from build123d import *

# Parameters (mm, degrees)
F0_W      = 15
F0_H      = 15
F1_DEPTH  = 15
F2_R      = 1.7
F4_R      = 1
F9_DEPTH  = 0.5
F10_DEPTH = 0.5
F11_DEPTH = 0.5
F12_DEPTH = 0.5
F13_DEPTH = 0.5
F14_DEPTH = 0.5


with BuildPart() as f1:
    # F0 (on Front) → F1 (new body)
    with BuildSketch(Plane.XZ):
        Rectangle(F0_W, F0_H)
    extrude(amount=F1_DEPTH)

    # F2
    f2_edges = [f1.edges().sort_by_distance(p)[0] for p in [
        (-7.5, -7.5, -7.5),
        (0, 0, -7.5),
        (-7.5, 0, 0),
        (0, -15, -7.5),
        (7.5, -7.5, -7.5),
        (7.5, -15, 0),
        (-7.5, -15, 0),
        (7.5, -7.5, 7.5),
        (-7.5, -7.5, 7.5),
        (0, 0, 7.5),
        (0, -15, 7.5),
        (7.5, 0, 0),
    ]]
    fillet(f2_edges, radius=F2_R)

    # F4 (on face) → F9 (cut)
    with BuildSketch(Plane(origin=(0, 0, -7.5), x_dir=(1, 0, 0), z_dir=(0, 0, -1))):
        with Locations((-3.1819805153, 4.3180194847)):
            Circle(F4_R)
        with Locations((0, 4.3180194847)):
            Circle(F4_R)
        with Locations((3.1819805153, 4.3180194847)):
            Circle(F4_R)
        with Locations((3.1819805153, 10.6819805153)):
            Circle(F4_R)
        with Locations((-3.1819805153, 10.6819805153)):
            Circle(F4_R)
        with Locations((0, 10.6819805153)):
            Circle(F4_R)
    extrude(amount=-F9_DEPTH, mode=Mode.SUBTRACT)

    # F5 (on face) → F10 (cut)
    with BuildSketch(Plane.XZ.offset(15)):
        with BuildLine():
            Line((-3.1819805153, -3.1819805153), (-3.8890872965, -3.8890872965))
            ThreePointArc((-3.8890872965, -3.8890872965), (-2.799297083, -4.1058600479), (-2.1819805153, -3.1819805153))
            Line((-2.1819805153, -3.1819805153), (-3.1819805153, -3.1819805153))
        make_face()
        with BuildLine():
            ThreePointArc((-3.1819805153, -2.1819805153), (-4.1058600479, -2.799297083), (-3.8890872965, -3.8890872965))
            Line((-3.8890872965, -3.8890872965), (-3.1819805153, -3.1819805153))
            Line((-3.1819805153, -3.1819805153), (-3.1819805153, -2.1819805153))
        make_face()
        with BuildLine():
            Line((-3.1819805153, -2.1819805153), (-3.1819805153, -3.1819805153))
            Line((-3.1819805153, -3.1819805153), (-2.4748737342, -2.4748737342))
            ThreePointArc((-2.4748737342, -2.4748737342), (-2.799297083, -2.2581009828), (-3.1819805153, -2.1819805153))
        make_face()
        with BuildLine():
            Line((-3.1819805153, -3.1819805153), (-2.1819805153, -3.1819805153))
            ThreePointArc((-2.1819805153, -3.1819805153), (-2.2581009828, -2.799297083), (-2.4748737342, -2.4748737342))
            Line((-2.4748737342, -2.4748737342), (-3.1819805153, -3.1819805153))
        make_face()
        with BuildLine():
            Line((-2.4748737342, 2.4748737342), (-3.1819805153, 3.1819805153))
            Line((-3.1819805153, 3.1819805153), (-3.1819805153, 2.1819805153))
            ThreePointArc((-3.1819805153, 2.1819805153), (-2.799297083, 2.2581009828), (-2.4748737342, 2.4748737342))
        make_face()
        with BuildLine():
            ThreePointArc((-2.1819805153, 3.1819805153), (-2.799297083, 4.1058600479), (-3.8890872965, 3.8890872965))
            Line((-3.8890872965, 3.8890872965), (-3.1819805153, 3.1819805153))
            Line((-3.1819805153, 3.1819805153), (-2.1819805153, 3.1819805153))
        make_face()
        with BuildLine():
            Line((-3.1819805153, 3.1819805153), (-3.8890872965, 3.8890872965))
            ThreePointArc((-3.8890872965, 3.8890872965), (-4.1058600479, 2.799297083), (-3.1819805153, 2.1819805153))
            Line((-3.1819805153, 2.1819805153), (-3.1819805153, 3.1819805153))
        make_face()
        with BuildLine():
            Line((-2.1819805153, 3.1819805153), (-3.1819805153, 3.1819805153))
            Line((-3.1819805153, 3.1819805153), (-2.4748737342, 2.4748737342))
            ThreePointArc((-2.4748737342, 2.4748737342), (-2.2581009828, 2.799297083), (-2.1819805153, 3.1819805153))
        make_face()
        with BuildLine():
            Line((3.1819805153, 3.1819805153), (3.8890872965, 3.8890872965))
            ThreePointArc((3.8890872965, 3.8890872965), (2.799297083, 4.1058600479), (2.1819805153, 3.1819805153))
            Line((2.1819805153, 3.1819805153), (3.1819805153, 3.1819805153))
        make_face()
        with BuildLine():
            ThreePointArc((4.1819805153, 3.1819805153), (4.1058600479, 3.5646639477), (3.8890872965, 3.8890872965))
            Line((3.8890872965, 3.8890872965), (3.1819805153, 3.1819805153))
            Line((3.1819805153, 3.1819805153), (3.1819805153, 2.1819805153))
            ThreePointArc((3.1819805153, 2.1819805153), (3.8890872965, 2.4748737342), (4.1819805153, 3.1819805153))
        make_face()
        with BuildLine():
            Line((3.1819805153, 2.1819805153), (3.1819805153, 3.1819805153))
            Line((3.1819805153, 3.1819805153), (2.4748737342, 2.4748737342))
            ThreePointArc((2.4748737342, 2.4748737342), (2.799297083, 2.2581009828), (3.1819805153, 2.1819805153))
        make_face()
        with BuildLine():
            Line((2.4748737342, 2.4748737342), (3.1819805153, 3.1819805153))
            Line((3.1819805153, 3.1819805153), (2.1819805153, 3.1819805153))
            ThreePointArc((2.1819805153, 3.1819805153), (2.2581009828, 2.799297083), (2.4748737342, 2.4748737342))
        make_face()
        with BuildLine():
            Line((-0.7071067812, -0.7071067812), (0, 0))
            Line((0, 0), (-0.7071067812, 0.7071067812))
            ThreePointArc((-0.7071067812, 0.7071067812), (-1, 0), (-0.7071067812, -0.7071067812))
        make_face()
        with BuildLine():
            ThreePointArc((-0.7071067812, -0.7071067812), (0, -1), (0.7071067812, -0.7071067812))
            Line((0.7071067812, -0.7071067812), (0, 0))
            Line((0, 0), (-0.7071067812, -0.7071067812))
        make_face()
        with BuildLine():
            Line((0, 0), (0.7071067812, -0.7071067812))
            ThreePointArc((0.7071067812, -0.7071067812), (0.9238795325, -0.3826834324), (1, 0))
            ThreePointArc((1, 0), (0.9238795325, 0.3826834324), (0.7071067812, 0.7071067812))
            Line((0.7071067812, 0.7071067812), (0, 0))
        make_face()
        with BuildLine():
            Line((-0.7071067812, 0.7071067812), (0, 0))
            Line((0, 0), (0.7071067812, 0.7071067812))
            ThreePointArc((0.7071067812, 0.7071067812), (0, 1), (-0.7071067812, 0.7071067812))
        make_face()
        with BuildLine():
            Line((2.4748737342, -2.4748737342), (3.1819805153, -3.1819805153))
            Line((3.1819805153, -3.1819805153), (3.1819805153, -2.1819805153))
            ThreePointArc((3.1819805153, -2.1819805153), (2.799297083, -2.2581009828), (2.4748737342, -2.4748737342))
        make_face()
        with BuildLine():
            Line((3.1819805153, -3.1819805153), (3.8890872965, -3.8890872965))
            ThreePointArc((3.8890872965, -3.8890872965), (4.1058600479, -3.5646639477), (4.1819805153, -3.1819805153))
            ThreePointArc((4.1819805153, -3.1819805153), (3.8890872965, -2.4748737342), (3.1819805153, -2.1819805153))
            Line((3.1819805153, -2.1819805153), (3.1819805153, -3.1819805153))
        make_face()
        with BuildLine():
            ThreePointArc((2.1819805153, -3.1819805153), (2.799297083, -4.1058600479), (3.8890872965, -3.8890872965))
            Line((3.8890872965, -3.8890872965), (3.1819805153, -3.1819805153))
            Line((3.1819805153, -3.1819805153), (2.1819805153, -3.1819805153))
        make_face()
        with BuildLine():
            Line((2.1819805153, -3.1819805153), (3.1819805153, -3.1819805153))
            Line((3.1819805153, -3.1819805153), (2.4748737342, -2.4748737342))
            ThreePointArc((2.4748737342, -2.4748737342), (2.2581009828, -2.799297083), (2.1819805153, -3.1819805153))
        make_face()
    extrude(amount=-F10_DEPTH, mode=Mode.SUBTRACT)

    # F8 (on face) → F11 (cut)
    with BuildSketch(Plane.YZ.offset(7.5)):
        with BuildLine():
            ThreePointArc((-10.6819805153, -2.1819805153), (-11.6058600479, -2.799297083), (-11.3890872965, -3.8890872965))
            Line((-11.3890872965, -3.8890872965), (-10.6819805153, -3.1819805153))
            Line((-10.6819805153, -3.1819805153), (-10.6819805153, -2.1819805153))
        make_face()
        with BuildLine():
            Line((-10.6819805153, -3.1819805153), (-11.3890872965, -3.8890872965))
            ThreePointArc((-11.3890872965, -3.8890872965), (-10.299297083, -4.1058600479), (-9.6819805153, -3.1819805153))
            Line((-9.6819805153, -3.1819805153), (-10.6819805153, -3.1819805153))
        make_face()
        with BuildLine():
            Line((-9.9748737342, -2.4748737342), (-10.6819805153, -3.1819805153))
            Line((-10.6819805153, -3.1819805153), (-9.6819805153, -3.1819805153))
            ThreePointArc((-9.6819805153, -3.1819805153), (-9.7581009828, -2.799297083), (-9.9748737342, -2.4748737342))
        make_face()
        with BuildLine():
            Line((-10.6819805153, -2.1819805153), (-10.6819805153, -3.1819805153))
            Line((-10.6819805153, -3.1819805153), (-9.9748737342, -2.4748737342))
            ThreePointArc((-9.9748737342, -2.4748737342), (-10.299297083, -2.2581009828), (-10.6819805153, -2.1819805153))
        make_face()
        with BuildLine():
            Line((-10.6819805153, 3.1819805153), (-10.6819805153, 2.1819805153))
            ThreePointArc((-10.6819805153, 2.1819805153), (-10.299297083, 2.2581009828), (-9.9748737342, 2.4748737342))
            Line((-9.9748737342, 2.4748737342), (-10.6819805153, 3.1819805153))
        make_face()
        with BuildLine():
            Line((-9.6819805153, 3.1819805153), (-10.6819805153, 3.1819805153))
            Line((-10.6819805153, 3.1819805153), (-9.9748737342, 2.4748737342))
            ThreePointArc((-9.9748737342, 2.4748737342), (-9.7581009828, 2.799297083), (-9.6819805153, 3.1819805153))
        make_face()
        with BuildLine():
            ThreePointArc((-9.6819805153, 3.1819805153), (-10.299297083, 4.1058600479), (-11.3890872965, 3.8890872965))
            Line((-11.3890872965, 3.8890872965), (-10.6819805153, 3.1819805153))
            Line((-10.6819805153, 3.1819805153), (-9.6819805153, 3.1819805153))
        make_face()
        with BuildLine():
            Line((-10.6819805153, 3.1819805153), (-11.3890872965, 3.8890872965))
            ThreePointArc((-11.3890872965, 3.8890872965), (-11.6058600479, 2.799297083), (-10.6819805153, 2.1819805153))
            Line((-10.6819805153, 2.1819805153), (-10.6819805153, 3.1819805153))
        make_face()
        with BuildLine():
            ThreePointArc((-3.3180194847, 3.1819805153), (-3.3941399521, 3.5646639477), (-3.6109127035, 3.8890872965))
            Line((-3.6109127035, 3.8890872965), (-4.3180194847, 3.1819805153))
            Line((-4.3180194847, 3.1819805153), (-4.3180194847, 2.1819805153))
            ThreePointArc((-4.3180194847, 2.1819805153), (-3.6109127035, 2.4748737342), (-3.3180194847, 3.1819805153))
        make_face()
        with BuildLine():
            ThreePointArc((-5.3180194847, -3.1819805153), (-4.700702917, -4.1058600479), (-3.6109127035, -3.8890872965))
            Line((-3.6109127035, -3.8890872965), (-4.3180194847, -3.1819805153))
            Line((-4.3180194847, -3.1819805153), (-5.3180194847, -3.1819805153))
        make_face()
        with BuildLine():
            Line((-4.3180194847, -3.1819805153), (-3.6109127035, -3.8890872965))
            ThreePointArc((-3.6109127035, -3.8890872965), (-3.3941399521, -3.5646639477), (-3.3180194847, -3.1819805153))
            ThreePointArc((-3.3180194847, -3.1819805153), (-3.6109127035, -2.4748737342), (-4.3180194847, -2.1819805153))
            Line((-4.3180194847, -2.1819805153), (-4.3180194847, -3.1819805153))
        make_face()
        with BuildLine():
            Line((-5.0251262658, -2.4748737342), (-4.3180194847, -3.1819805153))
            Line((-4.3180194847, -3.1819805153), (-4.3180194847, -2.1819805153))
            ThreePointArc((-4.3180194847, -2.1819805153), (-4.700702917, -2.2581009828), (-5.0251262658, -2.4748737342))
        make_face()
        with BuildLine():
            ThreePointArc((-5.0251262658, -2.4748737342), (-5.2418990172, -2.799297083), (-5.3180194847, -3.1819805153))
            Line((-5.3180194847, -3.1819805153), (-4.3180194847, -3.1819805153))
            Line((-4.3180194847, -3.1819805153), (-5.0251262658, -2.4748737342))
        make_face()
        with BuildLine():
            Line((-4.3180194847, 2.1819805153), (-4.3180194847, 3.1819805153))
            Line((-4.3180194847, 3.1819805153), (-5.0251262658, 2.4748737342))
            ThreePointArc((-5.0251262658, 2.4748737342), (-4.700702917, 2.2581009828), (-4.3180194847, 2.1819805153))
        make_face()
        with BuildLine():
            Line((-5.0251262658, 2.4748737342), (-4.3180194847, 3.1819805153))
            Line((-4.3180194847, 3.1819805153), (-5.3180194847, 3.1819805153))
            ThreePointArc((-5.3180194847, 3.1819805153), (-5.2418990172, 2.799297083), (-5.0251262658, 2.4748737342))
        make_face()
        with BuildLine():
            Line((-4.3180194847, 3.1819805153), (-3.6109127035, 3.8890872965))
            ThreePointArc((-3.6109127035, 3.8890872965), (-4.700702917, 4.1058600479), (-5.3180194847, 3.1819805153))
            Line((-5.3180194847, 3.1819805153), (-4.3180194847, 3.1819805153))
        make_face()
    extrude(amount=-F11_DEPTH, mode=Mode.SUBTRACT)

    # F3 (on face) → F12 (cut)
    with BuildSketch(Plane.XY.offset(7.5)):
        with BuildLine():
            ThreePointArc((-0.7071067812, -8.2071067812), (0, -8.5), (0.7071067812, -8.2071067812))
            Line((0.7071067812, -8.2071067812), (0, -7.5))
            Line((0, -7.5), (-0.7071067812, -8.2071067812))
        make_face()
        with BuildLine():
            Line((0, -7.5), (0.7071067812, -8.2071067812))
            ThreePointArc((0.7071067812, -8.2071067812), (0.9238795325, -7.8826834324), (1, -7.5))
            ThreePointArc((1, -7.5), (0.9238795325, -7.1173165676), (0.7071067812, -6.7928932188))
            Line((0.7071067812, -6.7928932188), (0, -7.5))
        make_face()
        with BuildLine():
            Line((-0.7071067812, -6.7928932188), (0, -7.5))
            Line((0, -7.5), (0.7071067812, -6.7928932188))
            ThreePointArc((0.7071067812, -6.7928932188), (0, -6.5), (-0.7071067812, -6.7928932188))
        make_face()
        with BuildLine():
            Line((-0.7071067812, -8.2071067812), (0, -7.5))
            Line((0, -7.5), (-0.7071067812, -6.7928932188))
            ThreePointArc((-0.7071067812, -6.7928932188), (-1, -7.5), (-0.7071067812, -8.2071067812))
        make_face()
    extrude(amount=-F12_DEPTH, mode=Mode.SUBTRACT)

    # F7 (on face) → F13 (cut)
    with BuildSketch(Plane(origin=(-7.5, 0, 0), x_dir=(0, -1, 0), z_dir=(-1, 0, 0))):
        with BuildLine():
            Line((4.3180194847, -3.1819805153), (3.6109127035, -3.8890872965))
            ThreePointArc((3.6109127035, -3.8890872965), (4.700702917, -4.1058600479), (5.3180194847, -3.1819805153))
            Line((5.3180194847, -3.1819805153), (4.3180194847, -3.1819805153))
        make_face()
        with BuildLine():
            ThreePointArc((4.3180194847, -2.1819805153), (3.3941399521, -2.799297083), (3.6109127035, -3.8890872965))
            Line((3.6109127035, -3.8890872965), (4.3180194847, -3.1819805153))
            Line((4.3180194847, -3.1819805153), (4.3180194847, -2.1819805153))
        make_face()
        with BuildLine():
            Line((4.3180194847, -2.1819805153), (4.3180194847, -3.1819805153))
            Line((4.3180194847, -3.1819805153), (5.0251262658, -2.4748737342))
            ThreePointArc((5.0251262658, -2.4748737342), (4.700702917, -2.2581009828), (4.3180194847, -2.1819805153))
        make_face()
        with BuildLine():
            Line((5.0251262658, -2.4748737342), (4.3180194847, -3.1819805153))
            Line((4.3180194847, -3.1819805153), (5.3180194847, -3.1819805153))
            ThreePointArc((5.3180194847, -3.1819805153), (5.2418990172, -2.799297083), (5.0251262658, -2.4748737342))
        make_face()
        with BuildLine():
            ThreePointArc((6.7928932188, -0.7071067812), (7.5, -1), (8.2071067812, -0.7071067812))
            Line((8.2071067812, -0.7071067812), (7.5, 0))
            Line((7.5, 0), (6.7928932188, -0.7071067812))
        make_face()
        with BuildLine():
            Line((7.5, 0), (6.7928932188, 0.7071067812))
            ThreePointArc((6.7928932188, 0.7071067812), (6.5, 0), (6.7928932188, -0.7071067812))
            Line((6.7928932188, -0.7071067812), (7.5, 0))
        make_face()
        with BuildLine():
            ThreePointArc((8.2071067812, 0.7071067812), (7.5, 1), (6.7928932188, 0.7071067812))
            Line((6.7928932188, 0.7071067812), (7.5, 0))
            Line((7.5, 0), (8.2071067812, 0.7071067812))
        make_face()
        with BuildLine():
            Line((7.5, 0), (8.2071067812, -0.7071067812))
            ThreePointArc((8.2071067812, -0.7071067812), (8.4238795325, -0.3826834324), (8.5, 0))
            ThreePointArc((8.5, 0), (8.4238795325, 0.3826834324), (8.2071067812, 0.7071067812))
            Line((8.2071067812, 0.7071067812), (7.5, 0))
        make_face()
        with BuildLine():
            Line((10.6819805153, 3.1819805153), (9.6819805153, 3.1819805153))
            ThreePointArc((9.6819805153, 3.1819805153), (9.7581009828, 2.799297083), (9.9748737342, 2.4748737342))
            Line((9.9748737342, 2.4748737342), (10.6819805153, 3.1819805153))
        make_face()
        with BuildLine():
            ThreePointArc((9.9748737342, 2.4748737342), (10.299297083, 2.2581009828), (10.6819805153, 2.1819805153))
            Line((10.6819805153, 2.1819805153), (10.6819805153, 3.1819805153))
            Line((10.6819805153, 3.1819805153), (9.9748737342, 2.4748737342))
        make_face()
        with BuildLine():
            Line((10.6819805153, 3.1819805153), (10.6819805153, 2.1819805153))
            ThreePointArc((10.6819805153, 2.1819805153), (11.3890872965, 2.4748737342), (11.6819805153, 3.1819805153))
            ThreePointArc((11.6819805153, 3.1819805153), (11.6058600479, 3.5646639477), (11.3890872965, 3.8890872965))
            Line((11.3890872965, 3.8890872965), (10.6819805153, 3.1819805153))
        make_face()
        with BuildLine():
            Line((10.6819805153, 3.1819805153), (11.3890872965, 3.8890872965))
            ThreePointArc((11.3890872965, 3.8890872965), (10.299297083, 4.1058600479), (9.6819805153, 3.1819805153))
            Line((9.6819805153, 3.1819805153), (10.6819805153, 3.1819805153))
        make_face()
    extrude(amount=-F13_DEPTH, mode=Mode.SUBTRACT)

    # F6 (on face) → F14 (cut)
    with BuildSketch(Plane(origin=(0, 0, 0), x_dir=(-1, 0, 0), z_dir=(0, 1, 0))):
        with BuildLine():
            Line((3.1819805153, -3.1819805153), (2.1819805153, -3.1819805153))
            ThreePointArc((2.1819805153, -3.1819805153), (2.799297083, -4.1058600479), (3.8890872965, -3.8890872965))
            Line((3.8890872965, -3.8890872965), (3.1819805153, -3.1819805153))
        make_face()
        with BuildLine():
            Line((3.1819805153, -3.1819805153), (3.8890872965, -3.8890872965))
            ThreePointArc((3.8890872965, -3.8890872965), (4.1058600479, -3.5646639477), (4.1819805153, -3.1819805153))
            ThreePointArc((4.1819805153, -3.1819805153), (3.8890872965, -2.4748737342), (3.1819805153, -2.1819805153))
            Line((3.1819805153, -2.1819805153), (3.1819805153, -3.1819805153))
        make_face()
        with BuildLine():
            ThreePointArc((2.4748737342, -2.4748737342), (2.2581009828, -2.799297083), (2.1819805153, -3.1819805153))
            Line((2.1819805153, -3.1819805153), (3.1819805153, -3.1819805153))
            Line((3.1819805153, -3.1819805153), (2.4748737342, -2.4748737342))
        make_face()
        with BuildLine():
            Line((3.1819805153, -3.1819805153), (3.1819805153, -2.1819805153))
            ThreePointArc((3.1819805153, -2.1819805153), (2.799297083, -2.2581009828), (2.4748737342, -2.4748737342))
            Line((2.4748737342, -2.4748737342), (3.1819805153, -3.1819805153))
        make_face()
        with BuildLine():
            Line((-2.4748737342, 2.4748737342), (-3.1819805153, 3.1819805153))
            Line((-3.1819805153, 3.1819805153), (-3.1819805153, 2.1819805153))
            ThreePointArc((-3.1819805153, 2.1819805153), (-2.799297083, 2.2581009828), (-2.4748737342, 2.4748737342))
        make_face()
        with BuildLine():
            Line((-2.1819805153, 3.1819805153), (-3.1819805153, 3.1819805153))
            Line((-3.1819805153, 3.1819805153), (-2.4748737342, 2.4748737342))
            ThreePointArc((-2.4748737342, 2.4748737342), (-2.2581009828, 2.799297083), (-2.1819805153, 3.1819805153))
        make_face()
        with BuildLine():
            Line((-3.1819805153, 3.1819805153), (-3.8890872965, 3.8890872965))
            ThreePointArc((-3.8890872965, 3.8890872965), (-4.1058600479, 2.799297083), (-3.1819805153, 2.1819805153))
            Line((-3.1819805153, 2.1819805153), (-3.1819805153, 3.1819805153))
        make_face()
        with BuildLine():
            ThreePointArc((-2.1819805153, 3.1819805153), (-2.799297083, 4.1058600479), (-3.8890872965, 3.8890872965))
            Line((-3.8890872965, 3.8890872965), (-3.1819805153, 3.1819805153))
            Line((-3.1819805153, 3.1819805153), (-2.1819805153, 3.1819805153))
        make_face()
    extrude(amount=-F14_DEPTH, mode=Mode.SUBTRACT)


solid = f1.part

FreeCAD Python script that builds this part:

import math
import FreeCAD as App
import Part
import Sketcher

V = App.Vector

doc = App.newDocument("Part")
body = doc.addObject("PartDesign::Body", "Body")

sketch1 = doc.addObject("Sketcher::SketchObject", "Sketch")
body.addObject(sketch1)
sketch1.AttachmentSupport = (doc.XZ_Plane, [""])
sketch1.MapMode = "FlatFace"
sketch1.addGeometry([
    Part.LineSegment(V(-8, 8, 0), V(-8, -8, 0)),
    Part.LineSegment(V(-8, -8, 0), V(8, -8, 0)),
    Part.LineSegment(V(8, -8, 0), V(8, 8, 0)),
    Part.LineSegment(V(8, 8, 0), V(-8, 8, 0)),
], False)
sketch1.addConstraint([
    Sketcher.Constraint("Coincident", 0, 2, 1, 1),
    Sketcher.Constraint("Coincident", 1, 2, 2, 1),
    Sketcher.Constraint("Coincident", 2, 2, 3, 1),
    Sketcher.Constraint("Coincident", 3, 2, 0, 1),
    Sketcher.Constraint("Vertical", 0),
    Sketcher.Constraint("Horizontal", 1),
    Sketcher.Constraint("Vertical", 2),
    Sketcher.Constraint("Horizontal", 3),
    Sketcher.Constraint("Symmetric", 0, 2, 2, 2, -1, 1),
    Sketcher.Constraint("Equal", 3, 0),
    Sketcher.Constraint("DistanceX", 1, 1, 1, 2, 15.0),
])
pad1 = doc.addObject("PartDesign::Pad", "Pad")
body.addObject(pad1)
pad1.Profile = sketch1
pad1.Length = 15
doc.recompute()

fillet = doc.addObject("PartDesign::Fillet", "Fillet")
body.addObject(fillet)
fillet.Base = (pad1, ["Edge1"])
fillet.UseAllEdges = True
fillet.Radius = 1.7

sketch2 = doc.addObject("Sketcher::SketchObject", "Sketch001")
body.addObject(sketch2)
sketch2.AttachmentSupport = (doc.XY_Plane, [""])
sketch2.MapMode = "FlatFace"
sketch2.AttachmentOffset = App.Placement(V(0, 0, -7.5), App.Rotation())
sketch2.addGeometry([
    Part.Circle(V(-3.2, -4.3, 0), V(0, 0, 1), 1),
    Part.Circle(V(0, -4.3, 0), V(0, 0, 1), 1),
    Part.Circle(V(3.2, -4.3, 0), V(0, 0, 1), 1),
    Part.Circle(V(3.2, -10.7, 0), V(0, 0, 1), 1),
    Part.Circle(V(-3.2, -10.7, 0), V(0, 0, 1), 1),
    Part.Circle(V(0, -10.7, 0), V(0, 0, 1), 1),
], False)
sketch2.addConstraint([
    Sketcher.Constraint("Equal", 0, 1),
    Sketcher.Constraint("Equal", 1, 2),
    Sketcher.Constraint("Equal", 2, 3),
    Sketcher.Constraint("Equal", 3, 4),
    Sketcher.Constraint("Equal", 4, 5),
    Sketcher.Constraint("Symmetric", 0, 3, 2, 3, -2),
    Sketcher.Constraint("Symmetric", 3, 3, 4, 3, -2),
    Sketcher.Constraint("PointOnObject", 1, 3, -2),
    Sketcher.Constraint("PointOnObject", 5, 3, -2),
    Sketcher.Constraint("Horizontal", 0, 3, 1, 3),
    Sketcher.Constraint("Horizontal", 4, 3, 5, 3),
    Sketcher.Constraint("Vertical", 2, 3, 3, 3),
    Sketcher.Constraint("Diameter", 0, 2.0),
    Sketcher.Constraint("DistanceX", 0, 3, -1, 1, 3.181981),
    Sketcher.Constraint("DistanceY", 0, 3, -1, 1, 4.318019),
    Sketcher.Constraint("DistanceY", 3, 3, -1, 1, 10.681981),
])
pocket1 = doc.addObject("PartDesign::Pocket", "Pocket")
body.addObject(pocket1)
pocket1.Profile = sketch2
pocket1.Length = 0.5
pocket1.Reversed = True

sketch3 = doc.addObject("Sketcher::SketchObject", "Sketch002")
body.addObject(sketch3)
sketch3.AttachmentSupport = (doc.XZ_Plane, [""])
sketch3.MapMode = "FlatFace"
sketch3.AttachmentOffset = App.Placement(V(0, 0, 15), App.Rotation())
sketch3.addGeometry([
    Part.ArcOfCircle(Part.Circle(V(-3.2, -3.2, 0), V(0, 0, 1), 1), math.radians(-135), math.radians(0)),
    Part.ArcOfCircle(Part.Circle(V(-3.2, -3.2, 0), V(0, 0, 1), 1), math.radians(0), math.radians(45)),
    Part.ArcOfCircle(Part.Circle(V(-3.2, -3.2, 0), V(0, 0, 1), 1), math.radians(45), math.radians(90)),
    Part.ArcOfCircle(Part.Circle(V(-3.2, -3.2, 0), V(0, 0, 1), 1), math.radians(90), math.radians(225)),
    Part.ArcOfCircle(Part.Circle(V(-3.2, 3.2, 0), V(0, 0, 1), 1), math.radians(0), math.radians(135)),
    Part.ArcOfCircle(Part.Circle(V(-3.2, 3.2, 0), V(0, 0, 1), 1), math.radians(135), math.radians(270)),
    Part.ArcOfCircle(Part.Circle(V(-3.2, 3.2, 0), V(0, 0, 1), 1), math.radians(-90), math.radians(-45)),
    Part.ArcOfCircle(Part.Circle(V(-3.2, 3.2, 0), V(0, 0, 1), 1), math.radians(-45), math.radians(0)),
    Part.ArcOfCircle(Part.Circle(V(3.2, 3.2, 0), V(0, 0, 1), 1), math.radians(45), math.radians(180)),
    Part.ArcOfCircle(Part.Circle(V(3.2, 3.2, 0), V(0, 0, 1), 1), math.radians(180), math.radians(225)),
    Part.ArcOfCircle(Part.Circle(V(3.2, 3.2, 0), V(0, 0, 1), 1), math.radians(-135), math.radians(-90)),
    Part.ArcOfCircle(Part.Circle(V(3.2, 3.2, 0), V(0, 0, 1), 1), math.radians(-90), math.radians(0)),
    Part.ArcOfCircle(Part.Circle(V(3.2, 3.2, 0), V(0, 0, 1), 1), math.radians(0), math.radians(45)),
    Part.ArcOfCircle(Part.Circle(V(0, 0, 0), V(0, 0, 1), 1), math.radians(135), math.radians(225)),
    Part.ArcOfCircle(Part.Circle(V(0, 0, 0), V(0, 0, 1), 1), math.radians(-135), math.radians(-45)),
    Part.ArcOfCircle(Part.Circle(V(0, 0, 0), V(0, 0, 1), 1), math.radians(-45), math.radians(0)),
    Part.ArcOfCircle(Part.Circle(V(0, 0, 0), V(0, 0, 1), 1), math.radians(0), math.radians(45)),
    Part.ArcOfCircle(Part.Circle(V(0, 0, 0), V(0, 0, 1), 1), math.radians(45), math.radians(135)),
    Part.ArcOfCircle(Part.Circle(V(3.2, -3.2, 0), V(0, 0, 1), 1), math.radians(180), math.radians(315)),
    Part.ArcOfCircle(Part.Circle(V(3.2, -3.2, 0), V(0, 0, 1), 1), math.radians(-45), math.radians(0)),
    Part.ArcOfCircle(Part.Circle(V(3.2, -3.2, 0), V(0, 0, 1), 1), math.radians(0), math.radians(90)),
    Part.ArcOfCircle(Part.Circle(V(3.2, -3.2, 0), V(0, 0, 1), 1), math.radians(90), math.radians(135)),
    Part.ArcOfCircle(Part.Circle(V(3.2, -3.2, 0), V(0, 0, 1), 1), math.radians(135), math.radians(180)),
], False)
sketch3.addConstraint([
    Sketcher.Constraint("Tangent", 0, 2, 1, 1),
    Sketcher.Constraint("Tangent", 1, 2, 2, 1),
    Sketcher.Constraint("Tangent", 2, 2, 3, 1),
    Sketcher.Constraint("Tangent", 3, 2, 0, 1),
    Sketcher.Constraint("Tangent", 4, 2, 5, 1),
    Sketcher.Constraint("Tangent", 5, 2, 6, 1),
    Sketcher.Constraint("Tangent", 6, 2, 7, 1),
    Sketcher.Constraint("Tangent", 7, 2, 4, 1),
    Sketcher.Constraint("Tangent", 8, 2, 9, 1),
    Sketcher.Constraint("Tangent", 9, 2, 10, 1),
    Sketcher.Constraint("Tangent", 10, 2, 11, 1),
    Sketcher.Constraint("Tangent", 11, 2, 12, 1),
    Sketcher.Constraint("Tangent", 12, 2, 8, 1),
    Sketcher.Constraint("Tangent", 13, 2, 14, 1),
    Sketcher.Constraint("Tangent", 14, 2, 15, 1),
    Sketcher.Constraint("Tangent", 15, 2, 16, 1),
    Sketcher.Constraint("Tangent", 16, 2, 17, 1),
    Sketcher.Constraint("Tangent", 17, 2, 13, 1),
    Sketcher.Constraint("Tangent", 18, 2, 19, 1),
    Sketcher.Constraint("Tangent", 19, 2, 20, 1),
    Sketcher.Constraint("Tangent", 20, 2, 21, 1),
    Sketcher.Constraint("Tangent", 21, 2, 22, 1),
    Sketcher.Constraint("Tangent", 22, 2, 18, 1),
    Sketcher.Constraint("Coincident", 13, 3, -1, 1),
    Sketcher.Constraint("Coincident", 15, 3, -1, 1),
    Sketcher.Constraint("Coincident", 10, 3, 8, 3),
    Sketcher.Constraint("Coincident", 20, 3, 18, 3),
    Sketcher.Constraint("Equal", 0, 1),
    Sketcher.Constraint("Equal", 3, 4),
    Sketcher.Constraint("Equal", 4, 5),
    Sketcher.Constraint("Equal", 7, 8),
    Sketcher.Constraint("Equal", 12, 13),
    Sketcher.Constraint("Equal", 17, 18),
    Sketcher.Constraint("Symmetric", 0, 3, 8, 3, -1, 1),
    Sketcher.Constraint("Symmetric", 4, 3, 18, 3, -1, 1),
    Sketcher.Constraint("Symmetric", 4, 3, 8, 3, -2),
    Sketcher.Constraint("PointOnObject", 15, 2, -1),
    Sketcher.Constraint("Horizontal", 22, 3, 0, 2),
    Sketcher.Constraint("Horizontal", 12, 3, 7, 2),
    Sketcher.Constraint("Horizontal", 7, 2, 8, 2),
    Sketcher.Constraint("Horizontal", 6, 2, 9, 2),
    Sketcher.Constraint("Horizontal", 8, 2, 11, 2),
    Sketcher.Constraint("Horizontal", 4, 2, 12, 2),
    Sketcher.Constraint("Horizontal", 13, 2, 14, 2),
    Sketcher.Constraint("Horizontal", 16, 2, 17, 2),
    Sketcher.Constraint("Horizontal", 3, 2, 18, 2),
    Sketcher.Constraint("Horizontal", 0, 2, 19, 2),
    Sketcher.Constraint("Horizontal", 1, 2, 21, 2),
    Sketcher.Constraint("Horizontal", 19, 2, 22, 2),
    Sketcher.Constraint("Vertical", 7, 3, 2, 2),
    Sketcher.Constraint("Vertical", 3, 2, 4, 2),
    Sketcher.Constraint("Vertical", 2, 2, 5, 2),
    Sketcher.Constraint("Vertical", 1, 2, 6, 2),
    Sketcher.Constraint("Vertical", 22, 3, 10, 2),
    Sketcher.Constraint("Vertical", 14, 2, 16, 2),
    Sketcher.Constraint("Vertical", 10, 2, 20, 2),
    Sketcher.Constraint("Radius", 0, 1.0),
    Sketcher.Constraint("DistanceX", 0, 3, -1, 1, 3.181981),
    Sketcher.Constraint("DistanceY", 0, 3, -1, 1, 3.181981),
    Sketcher.Constraint("DistanceX", 1, 2, -1, 1, 2.474874),
    Sketcher.Constraint("DistanceX", 3, 2, -1, 1, 3.889087),
    Sketcher.Constraint("DistanceX", 13, 2, -1, 1, 0.707107),
])
pocket2 = doc.addObject("PartDesign::Pocket", "Pocket001")
body.addObject(pocket2)
pocket2.Profile = sketch3
pocket2.Length = 0.5

sketch4 = doc.addObject("Sketcher::SketchObject", "Sketch003")
body.addObject(sketch4)
sketch4.AttachmentSupport = (doc.YZ_Plane, [""])
sketch4.MapMode = "FlatFace"
sketch4.AttachmentOffset = App.Placement(V(0, 0, 7.5), App.Rotation())
sketch4.addGeometry([
    Part.ArcOfCircle(Part.Circle(V(-10.7, -3.2, 0), V(0, 0, 1), 1), math.radians(90), math.radians(225)),
    Part.ArcOfCircle(Part.Circle(V(-10.7, -3.2, 0), V(0, 0, 1), 1), math.radians(-135), math.radians(0)),
    Part.ArcOfCircle(Part.Circle(V(-10.7, -3.2, 0), V(0, 0, 1), 1), math.radians(0), math.radians(45)),
    Part.ArcOfCircle(Part.Circle(V(-10.7, -3.2, 0), V(0, 0, 1), 1), math.radians(45), math.radians(90)),
    Part.ArcOfCircle(Part.Circle(V(-10.7, 3.2, 0), V(0, 0, 1), 1), math.radians(-90), math.radians(-45)),
    Part.ArcOfCircle(Part.Circle(V(-10.7, 3.2, 0), V(0, 0, 1), 1), math.radians(-45), math.radians(0)),
    Part.ArcOfCircle(Part.Circle(V(-10.7, 3.2, 0), V(0, 0, 1), 1), math.radians(0), math.radians(135)),
    Part.ArcOfCircle(Part.Circle(V(-10.7, 3.2, 0), V(0, 0, 1), 1), math.radians(135), math.radians(270)),
    Part.ArcOfCircle(Part.Circle(V(-4.3, 3.2, 0), V(0, 0, 1), 1), math.radians(0), math.radians(45)),
    Part.ArcOfCircle(Part.Circle(V(-4.3, 3.2, 0), V(0, 0, 1), 1), math.radians(45), math.radians(180)),
    Part.ArcOfCircle(Part.Circle(V(-4.3, 3.2, 0), V(0, 0, 1), 1), math.radians(180), math.radians(225)),
    Part.ArcOfCircle(Part.Circle(V(-4.3, 3.2, 0), V(0, 0, 1), 1), math.radians(-135), math.radians(-90)),
    Part.ArcOfCircle(Part.Circle(V(-4.3, 3.2, 0), V(0, 0, 1), 1), math.radians(-90), math.radians(0)),
    Part.ArcOfCircle(Part.Circle(V(-4.3, -3.2, 0), V(0, 0, 1), 1), math.radians(180), math.radians(315)),
    Part.ArcOfCircle(Part.Circle(V(-4.3, -3.2, 0), V(0, 0, 1), 1), math.radians(-45), math.radians(0)),
    Part.ArcOfCircle(Part.Circle(V(-4.3, -3.2, 0), V(0, 0, 1), 1), math.radians(0), math.radians(90)),
    Part.ArcOfCircle(Part.Circle(V(-4.3, -3.2, 0), V(0, 0, 1), 1), math.radians(90), math.radians(135)),
    Part.ArcOfCircle(Part.Circle(V(-4.3, -3.2, 0), V(0, 0, 1), 1), math.radians(135), math.radians(180)),
], False)
sketch4.addConstraint([
    Sketcher.Constraint("Tangent", 0, 2, 1, 1),
    Sketcher.Constraint("Tangent", 1, 2, 2, 1),
    Sketcher.Constraint("Tangent", 2, 2, 3, 1),
    Sketcher.Constraint("Tangent", 3, 2, 0, 1),
    Sketcher.Constraint("Tangent", 4, 2, 5, 1),
    Sketcher.Constraint("Tangent", 5, 2, 6, 1),
    Sketcher.Constraint("Tangent", 6, 2, 7, 1),
    Sketcher.Constraint("Tangent", 7, 2, 4, 1),
    Sketcher.Constraint("Tangent", 8, 2, 9, 1),
    Sketcher.Constraint("Tangent", 9, 2, 10, 1),
    Sketcher.Constraint("Tangent", 10, 2, 11, 1),
    Sketcher.Constraint("Tangent", 11, 2, 12, 1),
    Sketcher.Constraint("Tangent", 12, 2, 8, 1),
    Sketcher.Constraint("Tangent", 13, 2, 14, 1),
    Sketcher.Constraint("Tangent", 14, 2, 15, 1),
    Sketcher.Constraint("Tangent", 15, 2, 16, 1),
    Sketcher.Constraint("Tangent", 16, 2, 17, 1),
    Sketcher.Constraint("Tangent", 17, 2, 13, 1),
    Sketcher.Constraint("Coincident", 10, 3, 8, 3),
    Sketcher.Constraint("Coincident", 15, 3, 13, 3),
    Sketcher.Constraint("Equal", 0, 1),
    Sketcher.Constraint("Equal", 3, 4),
    Sketcher.Constraint("Equal", 4, 5),
    Sketcher.Constraint("Equal", 7, 8),
    Sketcher.Constraint("Equal", 12, 13),
    Sketcher.Constraint("Symmetric", 0, 3, 4, 3, -1),
    Sketcher.Constraint("Symmetric", 8, 3, 13, 3, -1),
    Sketcher.Constraint("Horizontal", 7, 3, 8, 3),
    Sketcher.Constraint("Horizontal", 17, 3, 1, 2),
    Sketcher.Constraint("Horizontal", 12, 3, 5, 2),
    Sketcher.Constraint("Horizontal", 6, 2, 8, 2),
    Sketcher.Constraint("Horizontal", 5, 2, 9, 2),
    Sketcher.Constraint("Horizontal", 4, 2, 10, 2),
    Sketcher.Constraint("Horizontal", 9, 2, 12, 2),
    Sketcher.Constraint("Horizontal", 0, 2, 13, 2),
    Sketcher.Constraint("Horizontal", 1, 2, 14, 2),
    Sketcher.Constraint("Horizontal", 2, 2, 16, 2),
    Sketcher.Constraint("Horizontal", 14, 2, 17, 2),
    Sketcher.Constraint("Vertical", 7, 3, 3, 2),
    Sketcher.Constraint("Vertical", 2, 2, 4, 2),
    Sketcher.Constraint("Vertical", 0, 2, 6, 2),
    Sketcher.Constraint("Vertical", 3, 2, 7, 2),
    Sketcher.Constraint("Vertical", 17, 3, 11, 2),
    Sketcher.Constraint("Vertical", 11, 2, 15, 2),
    Sketcher.Constraint("Radius", 0, 1.0),
    Sketcher.Constraint("DistanceX", 0, 3, -1, 1, 10.681981),
    Sketcher.Constraint("DistanceY", 0, 3, -1, 1, 3.181981),
    Sketcher.Constraint("DistanceX", 8, 3, -1, 1, 4.318019),
    Sketcher.Constraint("DistanceX", 0, 2, -1, 1, 11.389087),
    Sketcher.Constraint("DistanceX", 2, 2, -1, 1, 9.974874),
])
pocket3 = doc.addObject("PartDesign::Pocket", "Pocket002")
body.addObject(pocket3)
pocket3.Profile = sketch4
pocket3.Length = 0.5

sketch5 = doc.addObject("Sketcher::SketchObject", "Sketch004")
body.addObject(sketch5)
sketch5.AttachmentSupport = (doc.XY_Plane, [""])
sketch5.MapMode = "FlatFace"
sketch5.AttachmentOffset = App.Placement(V(0, 0, 7.5), App.Rotation())
sketch5.addGeometry([
    Part.ArcOfCircle(Part.Circle(V(0, -7.5, 0), V(0, 0, 1), 1), math.radians(-135), math.radians(-45)),
    Part.ArcOfCircle(Part.Circle(V(0, -7.5, 0), V(0, 0, 1), 1), math.radians(-45), math.radians(0)),
    Part.ArcOfCircle(Part.Circle(V(0, -7.5, 0), V(0, 0, 1), 1), math.radians(0), math.radians(45)),
    Part.ArcOfCircle(Part.Circle(V(0, -7.5, 0), V(0, 0, 1), 1), math.radians(45), math.radians(135)),
    Part.ArcOfCircle(Part.Circle(V(0, -7.5, 0), V(0, 0, 1), 1), math.radians(135), math.radians(225)),
], False)
sketch5.addConstraint([
    Sketcher.Constraint("Tangent", 0, 2, 1, 1),
    Sketcher.Constraint("Tangent", 1, 2, 2, 1),
    Sketcher.Constraint("Tangent", 2, 2, 3, 1),
    Sketcher.Constraint("Tangent", 3, 2, 4, 1),
    Sketcher.Constraint("Tangent", 4, 2, 0, 1),
    Sketcher.Constraint("Coincident", 2, 3, 0, 3),
    Sketcher.Constraint("Symmetric", 2, 2, 3, 2, -2),
    Sketcher.Constraint("Horizontal", 4, 3, 1, 2),
    Sketcher.Constraint("Horizontal", 0, 2, 4, 2),
    Sketcher.Constraint("Vertical", 0, 2, 2, 2),
    Sketcher.Constraint("Radius", 0, 1.0),
    Sketcher.Constraint("DistanceY", 0, 3, -1, 1, 7.5),
    Sketcher.Constraint("DistanceX", -1, 1, 0, 2, 0.707107),
])
pocket4 = doc.addObject("PartDesign::Pocket", "Pocket003")
body.addObject(pocket4)
pocket4.Profile = sketch5
pocket4.Length = 0.5

sketch6 = doc.addObject("Sketcher::SketchObject", "Sketch005")
body.addObject(sketch6)
sketch6.AttachmentSupport = (doc.YZ_Plane, [""])
sketch6.MapMode = "FlatFace"
sketch6.AttachmentOffset = App.Placement(V(0, 0, -7.5), App.Rotation())
sketch6.addGeometry([
    Part.ArcOfCircle(Part.Circle(V(-4.3, -3.2, 0), V(0, 0, 1), 1), math.radians(180), math.radians(315)),
    Part.ArcOfCircle(Part.Circle(V(-4.3, -3.2, 0), V(0, 0, 1), 1), math.radians(135), math.radians(180)),
    Part.ArcOfCircle(Part.Circle(V(-4.3, -3.2, 0), V(0, 0, 1), 1), math.radians(90), math.radians(135)),
    Part.ArcOfCircle(Part.Circle(V(-4.3, -3.2, 0), V(0, 0, 1), 1), math.radians(-45), math.radians(90)),
    Part.ArcOfCircle(Part.Circle(V(-7.5, 0, 0), V(0, 0, 1), 1), math.radians(-135), math.radians(-45)),
    Part.ArcOfCircle(Part.Circle(V(-7.5, 0, 0), V(0, 0, 1), 1), math.radians(180), math.radians(225)),
    Part.ArcOfCircle(Part.Circle(V(-7.5, 0, 0), V(0, 0, 1), 1), math.radians(135), math.radians(180)),
    Part.ArcOfCircle(Part.Circle(V(-7.5, 0, 0), V(0, 0, 1), 1), math.radians(45), math.radians(135)),
    Part.ArcOfCircle(Part.Circle(V(-7.5, 0, 0), V(0, 0, 1), 1), math.radians(-45), math.radians(45)),
    Part.ArcOfCircle(Part.Circle(V(-10.7, 3.2, 0), V(0, 0, 1), 1), math.radians(-45), math.radians(0)),
    Part.ArcOfCircle(Part.Circle(V(-10.7, 3.2, 0), V(0, 0, 1), 1), math.radians(-90), math.radians(-45)),
    Part.ArcOfCircle(Part.Circle(V(-10.7, 3.2, 0), V(0, 0, 1), 1), math.radians(180), math.radians(270)),
    Part.ArcOfCircle(Part.Circle(V(-10.7, 3.2, 0), V(0, 0, 1), 1), math.radians(135), math.radians(180)),
    Part.ArcOfCircle(Part.Circle(V(-10.7, 3.2, 0), V(0, 0, 1), 1), math.radians(0), math.radians(135)),
], False)
sketch6.addConstraint([
    Sketcher.Constraint("Tangent", 0, 1, 1, 2),
    Sketcher.Constraint("Tangent", 1, 1, 2, 2),
    Sketcher.Constraint("Tangent", 2, 1, 3, 2),
    Sketcher.Constraint("Tangent", 3, 1, 0, 2),
    Sketcher.Constraint("Tangent", 4, 1, 5, 2),
    Sketcher.Constraint("Tangent", 5, 1, 6, 2),
    Sketcher.Constraint("Tangent", 6, 1, 7, 2),
    Sketcher.Constraint("Tangent", 7, 1, 8, 2),
    Sketcher.Constraint("Tangent", 8, 1, 4, 2),
    Sketcher.Constraint("Tangent", 9, 1, 10, 2),
    Sketcher.Constraint("Tangent", 10, 1, 11, 2),
    Sketcher.Constraint("Tangent", 11, 1, 12, 2),
    Sketcher.Constraint("Tangent", 12, 1, 13, 2),
    Sketcher.Constraint("Tangent", 13, 1, 9, 2),
    Sketcher.Constraint("Coincident", 6, 3, 4, 3),
    Sketcher.Constraint("Coincident", 11, 3, 9, 3),
    Sketcher.Constraint("Equal", 0, 1),
    Sketcher.Constraint("Equal", 3, 4),
    Sketcher.Constraint("Equal", 8, 9),
    Sketcher.Constraint("Symmetric", 4, 1, 6, 1, -1),
    Sketcher.Constraint("PointOnObject", 5, 1, -1),
    Sketcher.Constraint("Horizontal", 3, 3, 0, 1),
    Sketcher.Constraint("Horizontal", 6, 1, 7, 1),
    Sketcher.Constraint("Horizontal", 4, 1, 8, 1),
    Sketcher.Constraint("Horizontal", 13, 3, 11, 1),
    Sketcher.Constraint("Horizontal", 11, 1, 13, 1),
    Sketcher.Constraint("Vertical", 3, 3, 2, 1),
    Sketcher.Constraint("Vertical", 13, 3, 10, 1),
    Sketcher.Constraint("Radius", 0, 1.0),
    Sketcher.Constraint("DistanceX", 4, 3, -1, 1, 7.5),
    Sketcher.Constraint("DistanceX", 0, 3, -1, 1, 4.318019),
    Sketcher.Constraint("DistanceY", 0, 3, -1, 1, 3.181981),
    Sketcher.Constraint("DistanceX", 9, 3, -1, 1, 10.681981),
    Sketcher.Constraint("DistanceY", -1, 1, 9, 3, 3.181981),
    Sketcher.Constraint("DistanceX", 1, 1, -1, 1, 5.025126),
    Sketcher.Constraint("DistanceX", 3, 1, -1, 1, 3.610913),
    Sketcher.Constraint("DistanceX", 4, 1, -1, 1, 8.207107),
    Sketcher.Constraint("DistanceX", 9, 1, -1, 1, 9.974874),
    Sketcher.Constraint("DistanceX", 12, 1, -1, 1, 11.389087),
])
pocket5 = doc.addObject("PartDesign::Pocket", "Pocket004")
body.addObject(pocket5)
pocket5.Profile = sketch6
pocket5.Length = 0.5
pocket5.Reversed = True

sketch7 = doc.addObject("Sketcher::SketchObject", "Sketch006")
body.addObject(sketch7)
sketch7.AttachmentSupport = (doc.XZ_Plane, [""])
sketch7.MapMode = "FlatFace"
sketch7.addGeometry([
    Part.ArcOfCircle(Part.Circle(V(-3.2, -3.2, 0), V(0, 0, 1), 1), math.radians(-135), math.radians(0)),
    Part.ArcOfCircle(Part.Circle(V(-3.2, -3.2, 0), V(0, 0, 1), 1), math.radians(180), math.radians(225)),
    Part.ArcOfCircle(Part.Circle(V(-3.2, -3.2, 0), V(0, 0, 1), 1), math.radians(90), math.radians(180)),
    Part.ArcOfCircle(Part.Circle(V(-3.2, -3.2, 0), V(0, 0, 1), 1), math.radians(45), math.radians(90)),
    Part.ArcOfCircle(Part.Circle(V(-3.2, -3.2, 0), V(0, 0, 1), 1), math.radians(0), math.radians(45)),
    Part.ArcOfCircle(Part.Circle(V(3.2, 3.2, 0), V(0, 0, 1), 1), math.radians(-135), math.radians(-90)),
    Part.ArcOfCircle(Part.Circle(V(3.2, 3.2, 0), V(0, 0, 1), 1), math.radians(180), math.radians(225)),
    Part.ArcOfCircle(Part.Circle(V(3.2, 3.2, 0), V(0, 0, 1), 1), math.radians(45), math.radians(180)),
    Part.ArcOfCircle(Part.Circle(V(3.2, 3.2, 0), V(0, 0, 1), 1), math.radians(-90), math.radians(45)),
], False)
sketch7.addConstraint([
    Sketcher.Constraint("Tangent", 0, 1, 1, 2),
    Sketcher.Constraint("Tangent", 1, 1, 2, 2),
    Sketcher.Constraint("Tangent", 2, 1, 3, 2),
    Sketcher.Constraint("Tangent", 3, 1, 4, 2),
    Sketcher.Constraint("Tangent", 4, 1, 0, 2),
    Sketcher.Constraint("Tangent", 5, 1, 6, 2),
    Sketcher.Constraint("Tangent", 6, 1, 7, 2),
    Sketcher.Constraint("Tangent", 7, 1, 8, 2),
    Sketcher.Constraint("Tangent", 8, 1, 5, 2),
    Sketcher.Constraint("Coincident", 2, 3, 0, 3),
    Sketcher.Constraint("Equal", 4, 5),
    Sketcher.Constraint("Equal", 5, 6),
    Sketcher.Constraint("Symmetric", 0, 3, 5, 3, -1, 1),
    Sketcher.Constraint("Horizontal", 4, 3, 1, 1),
    Sketcher.Constraint("Horizontal", 1, 1, 4, 1),
    Sketcher.Constraint("Horizontal", 8, 3, 6, 1),
    Sketcher.Constraint("Vertical", 4, 3, 2, 1),
    Sketcher.Constraint("Vertical", 7, 3, 8, 1),
    Sketcher.Constraint("Radius", 0, 1.0),
    Sketcher.Constraint("DistanceX", 0, 3, -1, 1, 3.181981),
    Sketcher.Constraint("DistanceY", 0, 3, -1, 1, 3.181981),
    Sketcher.Constraint("DistanceX", 0, 1, -1, 1, 3.889087),
    Sketcher.Constraint("DistanceX", 3, 1, -1, 1, 2.474874),
    Sketcher.Constraint("DistanceX", -1, 1, 5, 1, 2.474874),
    Sketcher.Constraint("DistanceX", -1, 1, 7, 1, 3.889087),
])
pocket6 = doc.addObject("PartDesign::Pocket", "Pocket005")
body.addObject(pocket6)
pocket6.Profile = sketch7
pocket6.Length = 0.5
pocket6.Reversed = True

doc.recompute()
